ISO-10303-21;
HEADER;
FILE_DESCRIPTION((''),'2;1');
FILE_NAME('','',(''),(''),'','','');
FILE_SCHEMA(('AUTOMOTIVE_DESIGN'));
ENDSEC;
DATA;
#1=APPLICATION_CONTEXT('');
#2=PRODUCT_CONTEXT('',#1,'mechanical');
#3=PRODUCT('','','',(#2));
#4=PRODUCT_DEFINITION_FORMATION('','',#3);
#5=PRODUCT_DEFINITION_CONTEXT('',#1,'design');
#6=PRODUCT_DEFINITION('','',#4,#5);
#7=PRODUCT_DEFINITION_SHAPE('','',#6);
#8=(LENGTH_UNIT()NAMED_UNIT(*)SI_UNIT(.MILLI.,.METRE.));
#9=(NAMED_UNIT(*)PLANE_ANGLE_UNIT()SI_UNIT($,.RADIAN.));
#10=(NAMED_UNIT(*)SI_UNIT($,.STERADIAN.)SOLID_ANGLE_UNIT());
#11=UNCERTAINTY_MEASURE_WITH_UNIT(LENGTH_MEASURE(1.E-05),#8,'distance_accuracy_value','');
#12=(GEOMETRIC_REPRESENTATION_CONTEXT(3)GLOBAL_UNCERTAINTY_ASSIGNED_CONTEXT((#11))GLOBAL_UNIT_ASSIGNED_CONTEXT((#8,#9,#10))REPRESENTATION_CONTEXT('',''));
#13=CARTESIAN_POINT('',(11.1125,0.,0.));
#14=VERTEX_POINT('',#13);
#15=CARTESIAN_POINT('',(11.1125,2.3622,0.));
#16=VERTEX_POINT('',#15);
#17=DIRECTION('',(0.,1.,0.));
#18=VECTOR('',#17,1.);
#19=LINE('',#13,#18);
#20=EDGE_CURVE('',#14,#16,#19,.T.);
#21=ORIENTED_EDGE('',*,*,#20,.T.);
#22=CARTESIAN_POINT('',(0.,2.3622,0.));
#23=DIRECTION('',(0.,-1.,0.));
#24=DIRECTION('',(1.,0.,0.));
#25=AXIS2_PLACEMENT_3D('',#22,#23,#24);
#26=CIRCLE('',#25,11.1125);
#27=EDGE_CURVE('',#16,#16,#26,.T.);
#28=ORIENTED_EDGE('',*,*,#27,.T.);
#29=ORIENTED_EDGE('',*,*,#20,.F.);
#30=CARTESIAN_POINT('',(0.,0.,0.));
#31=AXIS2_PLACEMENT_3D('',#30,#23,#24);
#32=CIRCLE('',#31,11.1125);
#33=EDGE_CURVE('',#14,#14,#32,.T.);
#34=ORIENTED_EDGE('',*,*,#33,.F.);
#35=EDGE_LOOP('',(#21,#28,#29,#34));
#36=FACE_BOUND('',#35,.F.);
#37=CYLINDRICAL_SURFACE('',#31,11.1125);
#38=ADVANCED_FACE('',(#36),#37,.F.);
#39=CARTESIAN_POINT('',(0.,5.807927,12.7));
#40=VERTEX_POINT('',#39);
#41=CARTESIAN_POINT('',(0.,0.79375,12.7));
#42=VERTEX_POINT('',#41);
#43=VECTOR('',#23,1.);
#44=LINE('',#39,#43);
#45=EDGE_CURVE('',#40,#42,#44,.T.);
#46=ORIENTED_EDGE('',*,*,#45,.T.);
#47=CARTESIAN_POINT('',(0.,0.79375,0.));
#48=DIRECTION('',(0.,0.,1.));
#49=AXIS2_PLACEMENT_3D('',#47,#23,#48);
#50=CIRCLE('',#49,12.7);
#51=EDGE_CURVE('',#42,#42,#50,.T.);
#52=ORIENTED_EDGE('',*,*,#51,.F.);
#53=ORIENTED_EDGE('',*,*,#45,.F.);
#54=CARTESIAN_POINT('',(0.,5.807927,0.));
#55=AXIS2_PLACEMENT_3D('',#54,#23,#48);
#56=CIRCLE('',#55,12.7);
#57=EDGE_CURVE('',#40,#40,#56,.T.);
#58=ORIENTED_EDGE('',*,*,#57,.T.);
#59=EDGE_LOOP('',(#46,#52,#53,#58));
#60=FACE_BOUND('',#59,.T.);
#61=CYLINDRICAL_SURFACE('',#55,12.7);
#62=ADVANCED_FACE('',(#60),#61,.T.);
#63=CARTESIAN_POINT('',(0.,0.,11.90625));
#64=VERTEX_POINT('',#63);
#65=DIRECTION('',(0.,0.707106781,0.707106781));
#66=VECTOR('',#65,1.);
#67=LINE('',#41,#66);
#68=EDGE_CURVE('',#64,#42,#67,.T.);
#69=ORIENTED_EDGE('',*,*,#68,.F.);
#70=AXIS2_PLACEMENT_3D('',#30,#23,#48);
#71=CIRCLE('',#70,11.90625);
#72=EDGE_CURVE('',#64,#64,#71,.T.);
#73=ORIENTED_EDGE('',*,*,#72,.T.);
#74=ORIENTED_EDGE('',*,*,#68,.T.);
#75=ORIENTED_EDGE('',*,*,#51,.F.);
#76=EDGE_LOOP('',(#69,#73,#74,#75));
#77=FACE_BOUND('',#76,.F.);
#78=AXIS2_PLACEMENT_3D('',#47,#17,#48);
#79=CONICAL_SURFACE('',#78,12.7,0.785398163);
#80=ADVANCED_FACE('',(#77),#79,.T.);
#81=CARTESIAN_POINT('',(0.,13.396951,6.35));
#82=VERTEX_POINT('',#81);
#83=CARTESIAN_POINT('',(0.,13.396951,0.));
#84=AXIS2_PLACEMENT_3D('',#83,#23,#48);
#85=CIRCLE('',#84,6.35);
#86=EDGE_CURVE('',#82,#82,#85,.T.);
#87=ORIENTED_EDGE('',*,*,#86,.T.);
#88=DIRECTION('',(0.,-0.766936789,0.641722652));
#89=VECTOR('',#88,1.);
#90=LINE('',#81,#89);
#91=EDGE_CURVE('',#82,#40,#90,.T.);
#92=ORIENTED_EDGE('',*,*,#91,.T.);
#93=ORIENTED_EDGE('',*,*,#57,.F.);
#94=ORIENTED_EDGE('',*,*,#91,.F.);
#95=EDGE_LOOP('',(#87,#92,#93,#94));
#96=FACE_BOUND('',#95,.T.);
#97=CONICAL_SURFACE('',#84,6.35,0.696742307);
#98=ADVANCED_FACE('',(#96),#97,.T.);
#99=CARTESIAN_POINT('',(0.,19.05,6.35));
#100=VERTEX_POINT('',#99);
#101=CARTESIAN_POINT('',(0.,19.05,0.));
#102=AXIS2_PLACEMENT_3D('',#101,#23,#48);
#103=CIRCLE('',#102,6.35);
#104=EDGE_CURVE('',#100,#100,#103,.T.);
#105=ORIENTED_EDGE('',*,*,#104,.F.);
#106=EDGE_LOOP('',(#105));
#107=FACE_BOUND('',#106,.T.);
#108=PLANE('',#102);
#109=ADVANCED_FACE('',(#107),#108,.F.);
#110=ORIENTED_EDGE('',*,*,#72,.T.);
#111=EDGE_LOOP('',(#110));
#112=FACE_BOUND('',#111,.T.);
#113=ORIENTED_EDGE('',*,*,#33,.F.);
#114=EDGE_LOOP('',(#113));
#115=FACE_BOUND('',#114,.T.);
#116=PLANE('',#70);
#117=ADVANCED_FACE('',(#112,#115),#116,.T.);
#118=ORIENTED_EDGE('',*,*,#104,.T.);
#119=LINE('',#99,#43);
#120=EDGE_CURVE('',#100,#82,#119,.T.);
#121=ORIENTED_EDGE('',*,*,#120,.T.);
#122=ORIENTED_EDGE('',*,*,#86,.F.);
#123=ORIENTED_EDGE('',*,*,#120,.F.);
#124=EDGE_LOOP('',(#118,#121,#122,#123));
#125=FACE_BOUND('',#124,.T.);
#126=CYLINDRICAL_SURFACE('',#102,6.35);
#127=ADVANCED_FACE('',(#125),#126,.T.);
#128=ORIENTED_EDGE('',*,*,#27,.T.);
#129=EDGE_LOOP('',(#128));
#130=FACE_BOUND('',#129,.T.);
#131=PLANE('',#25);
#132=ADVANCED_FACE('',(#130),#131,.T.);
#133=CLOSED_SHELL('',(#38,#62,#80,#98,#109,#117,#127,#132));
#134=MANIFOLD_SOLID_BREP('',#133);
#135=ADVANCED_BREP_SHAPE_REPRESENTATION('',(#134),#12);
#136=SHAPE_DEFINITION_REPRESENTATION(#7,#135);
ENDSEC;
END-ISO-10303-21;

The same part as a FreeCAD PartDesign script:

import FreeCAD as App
import Part
import Sketcher

V = App.Vector
Q = App.Units.Quantity


def edges_at(feature, points):
    """Names of the edges that pass closest to the given points."""
    edges = feature.Shape.Edges
    near = lambda p: min(range(len(edges)), key=lambda i: edges[i].distToShape(Part.Vertex(*p))[0])
    return sorted({f"Edge{near(p) + 1}" for p in points})

doc = App.newDocument("Part")
body = doc.addObject("PartDesign::Body", "Body")

sketch1 = doc.addObject("Sketcher::SketchObject", "Sketch")
body.addObject(sketch1)
sketch1.AttachmentSupport = (doc.YZ_Plane, [""])
sketch1.MapMode = "FlatFace"
sketch1.addGeometry([
    Part.LineSegment(V(0, 13, 0), V(0, 0, 0)),
    Part.LineSegment(V(0, 0, 0), V(19, 0, 0)),
    Part.LineSegment(V(19, 0, 0), V(19, 6, 0)),
    Part.LineSegment(V(19, 6, 0), V(13, 6, 0)),
    Part.LineSegment(V(13, 6, 0), V(6, 13, 0)),
    Part.LineSegment(V(6, 13, 0), V(0, 13, 0)),
], False)
sketch1.addConstraint([
    Sketcher.Constraint("Coincident", 0, 2, 1, 1),
    Sketcher.Constraint("Coincident", 1, 2, 2, 1),
    Sketcher.Constraint("Coincident", 2, 2, 3, 1),
    Sketcher.Constraint("Coincident", 3, 2, 4, 1),
    Sketcher.Constraint("Coincident", 4, 2, 5, 1),
    Sketcher.Constraint("Coincident", 5, 2, 0, 1),
    Sketcher.Constraint("Vertical", 0),
    Sketcher.Constraint("Horizontal", 1),
    Sketcher.Constraint("Vertical", 2),
    Sketcher.Constraint("Horizontal", 3),
    Sketcher.Constraint("Horizontal", 5),
    Sketcher.Constraint("Coincident", 0, 2, -1, 1),
    Sketcher.Constraint("DistanceY", 0, 2, 0, 1, Q("0.5 in")),
    Sketcher.Constraint("DistanceX", 1, 1, 1, 2, Q("0.75 in")),
    Sketcher.Constraint("DistanceY", 2, 1, 2, 2, Q("0.25 in")),
    Sketcher.Constraint("DistanceX", 3, 2, 3, 1, Q("5.653049 mm")),
    Sketcher.Constraint("Distance", 4, Q("9.895241 mm")),
])
revolution = doc.addObject("PartDesign::Revolution", "Revolution")
body.addObject(revolution)
revolution.Profile = sketch1
revolution.ReferenceAxis = (sketch1, ["H_Axis"])
revolution.Angle = 360
doc.recompute()

chamfer = doc.addObject("PartDesign::Chamfer", "Chamfer")
body.addObject(chamfer)
chamfer.Base = (revolution, edges_at(revolution, [(0, 0, -12.7)]))
chamfer.Size = Q("0.03125 in")

sketch2 = doc.addObject("Sketcher::SketchObject", "Sketch001")
body.addObject(sketch2)
sketch2.AttachmentSupport = (doc.XZ_Plane, [""])
sketch2.MapMode = "FlatFace"
sketch2.addGeometry(Part.Circle(V(0, 0, 0), V(0, 0, 1), 11), False)
sketch2.addConstraint([
    Sketcher.Constraint("Coincident", 0, 3, -1, 1),
    Sketcher.Constraint("Diameter", 0, Q("0.875 in")),
])
pocket1 = doc.addObject("PartDesign::Pocket", "Pocket")
body.addObject(pocket1)
pocket1.Profile = sketch2
pocket1.Length = Q("0.093 in")

doc.recompute()
